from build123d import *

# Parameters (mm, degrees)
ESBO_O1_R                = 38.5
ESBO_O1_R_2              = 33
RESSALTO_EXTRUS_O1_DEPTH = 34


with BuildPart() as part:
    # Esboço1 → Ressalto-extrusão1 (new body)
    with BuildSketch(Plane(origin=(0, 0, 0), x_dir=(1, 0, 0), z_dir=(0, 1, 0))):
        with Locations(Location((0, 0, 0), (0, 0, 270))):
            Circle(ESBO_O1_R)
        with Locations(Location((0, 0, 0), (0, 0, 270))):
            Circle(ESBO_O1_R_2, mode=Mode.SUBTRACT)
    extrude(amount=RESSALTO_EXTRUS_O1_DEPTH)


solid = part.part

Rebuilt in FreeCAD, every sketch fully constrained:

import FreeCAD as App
import Part
import Sketcher

V = App.Vector
Q = App.Units.Quantity

doc = App.newDocument("Part")
body = doc.addObject("PartDesign::Body", "Body")

# Sketch on XZ plane
sketch1 = body.newObject("Sketcher::SketchObject", "Sketch")
sketch1.AttachmentSupport = (doc.getObject("XZ_Plane"), [""])
sketch1.MapMode = "FlatFace"
sketch1.addGeometry([
    Part.Circle(V(0, 0, 0), V(0, 0, 1), 38),
    Part.Circle(V(0, 0, 0), V(0, 0, 1), 33),
], False)
sketch1.addConstraint([
    Sketcher.Constraint("Coincident", 0, 3, -1, 1),
    Sketcher.Constraint("Coincident", 1, 3, -1, 1),
    Sketcher.Constraint("Diameter", 0, Q("77 mm")),
    Sketcher.Constraint("Diameter", 1, Q("66 mm")),
])
pad1 = body.newObject("PartDesign::Pad", "Pad")
pad1.Profile = sketch1
pad1.Length = 34
pad1.Reversed = True

doc.recompute()
